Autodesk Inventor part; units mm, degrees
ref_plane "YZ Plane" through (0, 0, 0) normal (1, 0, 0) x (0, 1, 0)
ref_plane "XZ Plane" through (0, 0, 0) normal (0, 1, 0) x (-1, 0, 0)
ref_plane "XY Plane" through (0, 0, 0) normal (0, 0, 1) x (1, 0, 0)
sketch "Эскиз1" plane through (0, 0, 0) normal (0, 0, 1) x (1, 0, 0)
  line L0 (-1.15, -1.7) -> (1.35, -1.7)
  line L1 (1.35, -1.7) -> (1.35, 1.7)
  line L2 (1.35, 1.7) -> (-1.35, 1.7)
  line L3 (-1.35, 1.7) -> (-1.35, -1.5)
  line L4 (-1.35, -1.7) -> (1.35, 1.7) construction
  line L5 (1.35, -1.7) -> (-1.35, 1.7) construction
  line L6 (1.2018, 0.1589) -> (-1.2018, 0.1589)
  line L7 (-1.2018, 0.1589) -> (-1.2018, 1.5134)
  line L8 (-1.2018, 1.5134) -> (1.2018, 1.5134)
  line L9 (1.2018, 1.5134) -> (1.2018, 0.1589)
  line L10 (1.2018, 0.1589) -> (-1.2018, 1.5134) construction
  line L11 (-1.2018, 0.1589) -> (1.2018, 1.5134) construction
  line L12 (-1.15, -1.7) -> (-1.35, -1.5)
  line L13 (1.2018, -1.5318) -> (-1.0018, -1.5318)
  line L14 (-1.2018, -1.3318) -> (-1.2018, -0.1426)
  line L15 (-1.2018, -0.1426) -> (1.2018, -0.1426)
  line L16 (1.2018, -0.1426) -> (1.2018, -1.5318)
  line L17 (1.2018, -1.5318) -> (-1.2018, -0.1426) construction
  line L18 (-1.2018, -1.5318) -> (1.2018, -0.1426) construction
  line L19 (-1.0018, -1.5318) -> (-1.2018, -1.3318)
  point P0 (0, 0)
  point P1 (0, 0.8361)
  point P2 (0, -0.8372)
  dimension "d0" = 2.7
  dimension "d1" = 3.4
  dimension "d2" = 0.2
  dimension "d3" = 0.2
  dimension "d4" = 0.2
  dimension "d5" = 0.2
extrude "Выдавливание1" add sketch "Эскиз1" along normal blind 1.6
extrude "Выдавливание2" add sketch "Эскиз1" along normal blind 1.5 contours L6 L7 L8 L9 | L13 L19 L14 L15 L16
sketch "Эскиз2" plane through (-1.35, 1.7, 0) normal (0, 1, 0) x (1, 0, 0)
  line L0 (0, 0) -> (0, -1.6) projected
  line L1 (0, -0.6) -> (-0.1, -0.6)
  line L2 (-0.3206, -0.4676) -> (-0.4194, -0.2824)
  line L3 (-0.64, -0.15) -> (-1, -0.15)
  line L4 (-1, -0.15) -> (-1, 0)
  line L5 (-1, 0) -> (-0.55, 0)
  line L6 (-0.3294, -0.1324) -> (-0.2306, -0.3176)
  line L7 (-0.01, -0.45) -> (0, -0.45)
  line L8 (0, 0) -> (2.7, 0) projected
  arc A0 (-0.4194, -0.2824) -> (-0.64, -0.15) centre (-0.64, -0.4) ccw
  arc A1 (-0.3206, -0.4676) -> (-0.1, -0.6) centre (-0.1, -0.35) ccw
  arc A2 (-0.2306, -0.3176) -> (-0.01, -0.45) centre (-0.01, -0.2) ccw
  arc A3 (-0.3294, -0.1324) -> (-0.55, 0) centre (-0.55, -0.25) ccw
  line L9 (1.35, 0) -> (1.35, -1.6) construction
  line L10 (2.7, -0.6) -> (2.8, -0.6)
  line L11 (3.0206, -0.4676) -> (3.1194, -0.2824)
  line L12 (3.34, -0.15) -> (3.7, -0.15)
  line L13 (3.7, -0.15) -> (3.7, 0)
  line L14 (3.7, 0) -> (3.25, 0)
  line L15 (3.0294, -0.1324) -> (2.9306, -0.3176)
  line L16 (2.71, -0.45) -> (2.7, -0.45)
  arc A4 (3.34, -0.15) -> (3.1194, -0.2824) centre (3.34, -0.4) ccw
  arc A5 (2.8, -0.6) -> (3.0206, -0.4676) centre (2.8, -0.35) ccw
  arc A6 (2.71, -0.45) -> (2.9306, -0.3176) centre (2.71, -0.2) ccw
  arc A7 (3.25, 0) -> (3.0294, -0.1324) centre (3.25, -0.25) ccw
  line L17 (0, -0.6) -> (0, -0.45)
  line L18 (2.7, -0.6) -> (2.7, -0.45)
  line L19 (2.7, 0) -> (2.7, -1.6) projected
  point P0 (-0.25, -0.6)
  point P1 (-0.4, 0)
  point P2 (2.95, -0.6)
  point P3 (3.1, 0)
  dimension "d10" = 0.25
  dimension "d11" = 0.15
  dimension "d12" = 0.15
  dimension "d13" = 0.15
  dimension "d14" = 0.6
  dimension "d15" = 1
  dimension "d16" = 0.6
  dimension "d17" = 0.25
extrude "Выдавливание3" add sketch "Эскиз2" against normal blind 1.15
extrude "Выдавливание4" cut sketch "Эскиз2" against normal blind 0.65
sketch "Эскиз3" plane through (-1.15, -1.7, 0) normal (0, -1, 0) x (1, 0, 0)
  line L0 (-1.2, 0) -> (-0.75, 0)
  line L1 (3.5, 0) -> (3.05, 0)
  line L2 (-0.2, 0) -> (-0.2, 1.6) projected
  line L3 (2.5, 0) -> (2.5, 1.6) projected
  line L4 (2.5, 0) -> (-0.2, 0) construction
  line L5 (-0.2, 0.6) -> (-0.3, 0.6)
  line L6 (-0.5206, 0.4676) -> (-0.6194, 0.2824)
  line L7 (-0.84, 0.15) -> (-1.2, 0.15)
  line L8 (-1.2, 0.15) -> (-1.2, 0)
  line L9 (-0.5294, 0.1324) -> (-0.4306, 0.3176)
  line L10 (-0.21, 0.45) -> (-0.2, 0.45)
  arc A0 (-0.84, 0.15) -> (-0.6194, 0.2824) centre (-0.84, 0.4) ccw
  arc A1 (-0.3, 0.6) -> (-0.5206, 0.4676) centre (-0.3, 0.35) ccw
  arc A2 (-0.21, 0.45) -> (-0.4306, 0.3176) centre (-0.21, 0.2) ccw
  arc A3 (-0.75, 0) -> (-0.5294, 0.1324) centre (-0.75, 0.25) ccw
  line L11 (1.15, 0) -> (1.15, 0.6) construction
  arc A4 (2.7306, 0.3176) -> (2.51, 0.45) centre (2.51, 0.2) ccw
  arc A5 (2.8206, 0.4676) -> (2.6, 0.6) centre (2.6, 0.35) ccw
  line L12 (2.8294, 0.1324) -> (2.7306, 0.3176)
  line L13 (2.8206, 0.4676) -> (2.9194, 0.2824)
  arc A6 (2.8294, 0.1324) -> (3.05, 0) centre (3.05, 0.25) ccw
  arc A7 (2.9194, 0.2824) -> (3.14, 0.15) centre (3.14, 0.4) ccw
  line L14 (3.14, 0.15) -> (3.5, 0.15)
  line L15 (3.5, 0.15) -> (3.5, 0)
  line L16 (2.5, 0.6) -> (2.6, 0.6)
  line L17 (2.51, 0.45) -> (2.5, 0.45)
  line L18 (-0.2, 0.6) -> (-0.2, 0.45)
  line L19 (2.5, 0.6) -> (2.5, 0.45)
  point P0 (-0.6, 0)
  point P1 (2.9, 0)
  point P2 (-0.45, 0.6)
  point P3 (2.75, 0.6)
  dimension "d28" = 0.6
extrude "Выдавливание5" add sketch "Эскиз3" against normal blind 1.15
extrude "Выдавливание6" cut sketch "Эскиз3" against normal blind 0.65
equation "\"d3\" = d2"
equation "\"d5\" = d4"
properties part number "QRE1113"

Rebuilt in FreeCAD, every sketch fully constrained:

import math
import FreeCAD as App
import Part
import Sketcher
Q = App.Units.Quantity


def add_polygon(sketch, points):
    """Adds a closed chain of lines whose ends are joined by coincident constraints."""
    first, n = sketch.GeometryCount, len(points)
    for a, b in zip(points, points[1:] + points[:1]):
        sketch.addGeometry(Part.LineSegment(App.Vector(*a, 0), App.Vector(*b, 0)), False)
    for i in range(n):
        sketch.addConstraint(Sketcher.Constraint("Coincident", first + i, 2, first + (i + 1) % n, 1))

doc = App.newDocument("Part")
params = doc.addObject("Spreadsheet::Sheet", "Params")
for row, (alias, value) in enumerate([
    ("sketch1_width", "2.7 mm"),
    ("sketch1_height", "3.4 mm"),
    ("pad1_length", "1.6 mm"),
    ("pad2_length", "1.5 mm"),
    ("sketch3_radius", "0.25 mm"),
    ("sketch3_height", "0.15 mm"),
    ("sketch3_width", "0.1 mm"),
    ("sketch3_width2", "0.01 mm"),
    ("sketch3_width3", "0.45 mm"),
    ("pad3_length", "1.15 mm"),
    ("sketch4_radius", "0.25 mm"),
    ("sketch4_height", "0.15 mm"),
    ("sketch4_width", "0.1 mm"),
    ("sketch4_width2", "0.01 mm"),
    ("sketch4_width3", "0.45 mm"),
    ("pocket1_length", "0.65 mm"),
    ("sketch5_radius", "0.25 mm"),
    ("sketch5_width", "0.1 mm"),
    ("sketch5_width2", "0.45 mm"),
    ("sketch5_width3", "0.01 mm"),
    ("sketch5_height", "0.15 mm"),
    ("pad4_length", "1.15 mm"),
    ("sketch6_radius", "0.25 mm"),
    ("sketch6_width", "0.1 mm"),
    ("sketch6_width2", "0.45 mm"),
    ("sketch6_width3", "0.01 mm"),
    ("sketch6_height", "0.15 mm"),
    ("pocket2_length", "0.65 mm"),
], start=1):
    params.set(f"A{row}", alias)
    params.set(f"B{row}", "=" + value)
    params.setAlias(f"B{row}", alias)

body = doc.addObject("PartDesign::Body", "Body")

sketch1 = body.newObject("Sketcher::SketchObject", "Sketch")
sketch1.AttachmentSupport = (doc.getObject("XY_Plane"), [""])
sketch1.MapMode = "FlatFace"
add_polygon(sketch1, [(-1.35, -1.5), (-1.15, -1.7), (1.35, -1.7), (1.35, 1.7), (-1.35, 1.7)])
add_polygon(sketch1, [(1.2, -0.14), (1.2, -1.53), (-1, -1.53), (-1.2, -1.33), (-1.2, -0.14)])
add_polygon(sketch1, [(1.2, 1.51), (1.2, 0.16), (-1.2, 0.16), (-1.2, 1.51)])
sketch1.addConstraint(Sketcher.Constraint("Horizontal", 1))
sketch1.addConstraint(Sketcher.Constraint("Vertical", 2))
sketch1.addConstraint(Sketcher.Constraint("Horizontal", 3))
sketch1.addConstraint(Sketcher.Constraint("Vertical", 4))
sketch1.addConstraint(Sketcher.Constraint("Vertical", 5))
sketch1.addConstraint(Sketcher.Constraint("Horizontal", 6))
sketch1.addConstraint(Sketcher.Constraint("Vertical", 8))
sketch1.addConstraint(Sketcher.Constraint("Horizontal", 9))
sketch1.addConstraint(Sketcher.Constraint("Vertical", 10))
sketch1.addConstraint(Sketcher.Constraint("Horizontal", 11))
sketch1.addConstraint(Sketcher.Constraint("Vertical", 12))
sketch1.addConstraint(Sketcher.Constraint("Horizontal", 13))
sketch1.addConstraint(Sketcher.Constraint("Symmetric", 1, 2, 3, 2, -1, 1))
sketch1.addConstraint(Sketcher.Constraint("Parallel", 0, 7))
sketch1.addConstraint(Sketcher.Constraint("Vertical", 9, 2, 10, 2))
sketch1.addConstraint(Sketcher.Constraint("Vertical", 8, 2, 11, 2))
sketch1.addConstraint(Sketcher.Constraint("Equal", 0, 7))
sketch1.addConstraint(Sketcher.Constraint("DistanceX", 3, 2, 3, 1, Q("2.7 mm")))
sketch1.addConstraint(Sketcher.Constraint("DistanceY", 2, 1, 2, 2, Q("3.4 mm")))
sketch1.addConstraint(Sketcher.Constraint("DistanceX", 3, 2, 0, 2, Q("0.2 mm")))
sketch1.addConstraint(Sketcher.Constraint("DistanceY", 0, 2, 4, 2, Q("0.2 mm")))
sketch1.addConstraint(Sketcher.Constraint("DistanceX", 6, 2, 6, 1, Q("2.2036 mm")))
sketch1.addConstraint(Sketcher.Constraint("DistanceY", 5, 2, 5, 1, Q("1.3892 mm")))
sketch1.addConstraint(Sketcher.Constraint("DistanceY", 10, 2, 10, 1, Q("1.3545 mm")))
sketch1.addConstraint(Sketcher.Constraint("DistanceY", -1, 1, 10, 2, Q("0.159 mm")))
sketch1.addConstraint(Sketcher.Constraint("DistanceY", 8, 2, 12, 2, Q("1.656 mm")))
sketch1.addConstraint(Sketcher.Constraint("DistanceX", -1, 1, 5, 2, Q("1.2018 mm")))
sketch1.setExpression("Constraints[31]", "Params.sketch1_width")
sketch1.setExpression("Constraints[32]", "Params.sketch1_height")
pad1 = body.newObject("PartDesign::Pad", "Pad")
pad1.Profile = sketch1
pad1.setExpression("Length", "Params.pad1_length")

sketch2 = body.newObject("Sketcher::SketchObject", "Sketch001")
sketch2.AttachmentSupport = (doc.getObject("XY_Plane"), [""])
sketch2.MapMode = "FlatFace"
add_polygon(sketch2, [(-1.2, 0.16), (1.2, 0.16), (1.2, 1.51), (-1.2, 1.51)])
add_polygon(sketch2, [(-1, -1.53), (1.2, -1.53), (1.2, -0.14), (-1.2, -0.14), (-1.2, -1.33)])
sketch2.addConstraint(Sketcher.Constraint("Horizontal", 0))
sketch2.addConstraint(Sketcher.Constraint("Vertical", 1))
sketch2.addConstraint(Sketcher.Constraint("Horizontal", 2))
sketch2.addConstraint(Sketcher.Constraint("Vertical", 3))
sketch2.addConstraint(Sketcher.Constraint("Horizontal", 4))
sketch2.addConstraint(Sketcher.Constraint("Vertical", 5))
sketch2.addConstraint(Sketcher.Constraint("Horizontal", 6))
sketch2.addConstraint(Sketcher.Constraint("Vertical", 7))
sketch2.addConstraint(Sketcher.Constraint("Vertical", 1, 2, 4, 2))
sketch2.addConstraint(Sketcher.Constraint("Vertical", 3, 2, 6, 2))
sketch2.addConstraint(Sketcher.Constraint("DistanceY", 4, 2, 7, 2, Q("0.2 mm")))
sketch2.addConstraint(Sketcher.Constraint("DistanceX", 7, 2, 8, 2, Q("0.2 mm")))
sketch2.addConstraint(Sketcher.Constraint("DistanceX", 0, 1, 0, 2, Q("2.4036 mm")))
sketch2.addConstraint(Sketcher.Constraint("DistanceY", 1, 1, 1, 2, Q("1.3545 mm")))
sketch2.addConstraint(Sketcher.Constraint("DistanceY", 5, 1, 5, 2, Q("1.3892 mm")))
sketch2.addConstraint(Sketcher.Constraint("DistanceY", -1, 1, 0, 2, Q("0.159 mm")))
sketch2.addConstraint(Sketcher.Constraint("DistanceY", 5, 2, 1, 2, Q("1.656 mm")))
sketch2.addConstraint(Sketcher.Constraint("DistanceX", -1, 1, 0, 2, Q("1.2018 mm")))
pad2 = body.newObject("PartDesign::Pad", "Pad001")
pad2.Profile = sketch2
pad2.setExpression("Length", "Params.pad2_length")

sketch3 = body.newObject("Sketcher::SketchObject", "Sketch002")
sketch3.AttachmentSupport = (doc.getObject("XZ_Plane"), [""])
sketch3.MapMode = "FlatFace"
sketch3.AttachmentOffset = App.Placement(App.Vector(0, 0, -1.7), App.Rotation())
sketch3.addGeometry(Part.LineSegment(App.Vector(-1.35, 0.6, 0), App.Vector(-1.35, 0.45, 0)), False)
sketch3.addGeometry(Part.LineSegment(App.Vector(-1.35, 0.45, 0), App.Vector(-1.36, 0.45, 0)), False)
sketch3.addGeometry(Part.ArcOfCircle(Part.Circle(App.Vector(-1.36, 0.2, 0), App.Vector(0, 0, 1), 0.25), math.radians(90), math.radians(152)), False)
sketch3.addGeometry(Part.LineSegment(App.Vector(-1.581, 0.318, 0), App.Vector(-1.679, 0.132, 0)), False)
sketch3.addGeometry(Part.ArcOfCircle(Part.Circle(App.Vector(-1.9, 0.25, 0), App.Vector(0, 0, 1), 0.25), math.radians(-90), math.radians(-28)), False)
sketch3.addGeometry(Part.LineSegment(App.Vector(-1.9, 0, 0), App.Vector(-2.35, 0, 0)), False)
sketch3.addGeometry(Part.LineSegment(App.Vector(-2.35, 0, 0), App.Vector(-2.35, 0.15, 0)), False)
sketch3.addGeometry(Part.LineSegment(App.Vector(-2.35, 0.15, 0), App.Vector(-1.99, 0.15, 0)), False)
sketch3.addGeometry(Part.ArcOfCircle(Part.Circle(App.Vector(-1.99, 0.4, 0), App.Vector(0, 0, 1), 0.25), math.radians(-90), math.radians(-28)), False)
sketch3.addGeometry(Part.LineSegment(App.Vector(-1.769, 0.282, 0), App.Vector(-1.671, 0.468, 0)), False)
sketch3.addGeometry(Part.ArcOfCircle(Part.Circle(App.Vector(-1.45, 0.35, 0), App.Vector(0, 0, 1), 0.25), math.radians(90), math.radians(152)), False)
sketch3.addGeometry(Part.LineSegment(App.Vector(-1.45, 0.6, 0), App.Vector(-1.35, 0.6, 0)), False)
sketch3.addGeometry(Part.LineSegment(App.Vector(1.36, 0.45, 0), App.Vector(1.35, 0.45, 0)), False)
sketch3.addGeometry(Part.LineSegment(App.Vector(1.35, 0.45, 0), App.Vector(1.35, 0.6, 0)), False)
sketch3.addGeometry(Part.LineSegment(App.Vector(1.35, 0.6, 0), App.Vector(1.45, 0.6, 0)), False)
sketch3.addGeometry(Part.ArcOfCircle(Part.Circle(App.Vector(1.45, 0.35, 0), App.Vector(0, 0, 1), 0.25), math.radians(28), math.radians(90)), False)
sketch3.addGeometry(Part.LineSegment(App.Vector(1.671, 0.468, 0), App.Vector(1.769, 0.282, 0)), False)
sketch3.addGeometry(Part.ArcOfCircle(Part.Circle(App.Vector(1.99, 0.4, 0), App.Vector(0, 0, 1), 0.25), math.radians(-152), math.radians(-90)), False)
sketch3.addGeometry(Part.LineSegment(App.Vector(1.99, 0.15, 0), App.Vector(2.35, 0.15, 0)), False)
sketch3.addGeometry(Part.LineSegment(App.Vector(2.35, 0.15, 0), App.Vector(2.35, 0, 0)), False)
sketch3.addGeometry(Part.LineSegment(App.Vector(2.35, 0, 0), App.Vector(1.9, 0, 0)), False)
sketch3.addGeometry(Part.ArcOfCircle(Part.Circle(App.Vector(1.9, 0.25, 0), App.Vector(0, 0, 1), 0.25), math.radians(-152), math.radians(-90)), False)
sketch3.addGeometry(Part.LineSegment(App.Vector(1.679, 0.132, 0), App.Vector(1.581, 0.318, 0)), False)
sketch3.addGeometry(Part.ArcOfCircle(Part.Circle(App.Vector(1.36, 0.2, 0), App.Vector(0, 0, 1), 0.25), math.radians(28), math.radians(90)), False)
sketch3.addConstraint(Sketcher.Constraint("Coincident", 0, 2, 1, 1))
sketch3.addConstraint(Sketcher.Constraint("Tangent", 1, 2, 2, 1))
sketch3.addConstraint(Sketcher.Constraint("Tangent", 2, 2, 3, 1))
sketch3.addConstraint(Sketcher.Constraint("Tangent", 3, 2, 4, 2))
sketch3.addConstraint(Sketcher.Constraint("Tangent", 4, 1, 5, 1))
sketch3.addConstraint(Sketcher.Constraint("Coincident", 5, 2, 6, 1))
sketch3.addConstraint(Sketcher.Constraint("Coincident", 6, 2, 7, 1))
sketch3.addConstraint(Sketcher.Constraint("Tangent", 7, 2, 8, 1))
sketch3.addConstraint(Sketcher.Constraint("Tangent", 8, 2, 9, 1))
sketch3.addConstraint(Sketcher.Constraint("Tangent", 9, 2, 10, 2))
sketch3.addConstraint(Sketcher.Constraint("Tangent", 10, 1, 11, 1))
sketch3.addConstraint(Sketcher.Constraint("Coincident", 11, 2, 0, 1))
sketch3.addConstraint(Sketcher.Constraint("Coincident", 12, 2, 13, 1))
sketch3.addConstraint(Sketcher.Constraint("Coincident", 13, 2, 14, 1))
sketch3.addConstraint(Sketcher.Constraint("Tangent", 14, 2, 15, 2))
sketch3.addConstraint(Sketcher.Constraint("Tangent", 15, 1, 16, 1))
sketch3.addConstraint(Sketcher.Constraint("Tangent", 16, 2, 17, 1))
sketch3.addConstraint(Sketcher.Constraint("Tangent", 17, 2, 18, 1))
sketch3.addConstraint(Sketcher.Constraint("Coincident", 18, 2, 19, 1))
sketch3.addConstraint(Sketcher.Constraint("Coincident", 19, 2, 20, 1))
sketch3.addConstraint(Sketcher.Constraint("Tangent", 20, 2, 21, 2))
sketch3.addConstraint(Sketcher.Constraint("Tangent", 21, 1, 22, 1))
sketch3.addConstraint(Sketcher.Constraint("Tangent", 22, 2, 23, 1))
sketch3.addConstraint(Sketcher.Constraint("Tangent", 23, 2, 12, 1))
sketch3.addConstraint(Sketcher.Constraint("Vertical", 0))
sketch3.addConstraint(Sketcher.Constraint("Horizontal", 1))
sketch3.addConstraint(Sketcher.Constraint("Horizontal", 5))
sketch3.addConstraint(Sketcher.Constraint("Vertical", 6))
sketch3.addConstraint(Sketcher.Constraint("Horizontal", 7))
sketch3.addConstraint(Sketcher.Constraint("Horizontal", 11))
sketch3.addConstraint(Sketcher.Constraint("Horizontal", 12))
sketch3.addConstraint(Sketcher.Constraint("Vertical", 13))
sketch3.addConstraint(Sketcher.Constraint("Horizontal", 14))
sketch3.addConstraint(Sketcher.Constraint("Horizontal", 18))
sketch3.addConstraint(Sketcher.Constraint("Vertical", 19))
sketch3.addConstraint(Sketcher.Constraint("Horizontal", 20))
sketch3.addConstraint(Sketcher.Constraint("Equal", 2, 4))
sketch3.addConstraint(Sketcher.Constraint("Equal", 4, 8))
sketch3.addConstraint(Sketcher.Constraint("Equal", 8, 10))
sketch3.addConstraint(Sketcher.Constraint("Equal", 10, 15))
sketch3.addConstraint(Sketcher.Constraint("Equal", 15, 17))
sketch3.addConstraint(Sketcher.Constraint("Equal", 17, 21))
sketch3.addConstraint(Sketcher.Constraint("Equal", 21, 23))
sketch3.addConstraint(Sketcher.Constraint("Symmetric", 5, 2, 19, 2, -1, 1))
sketch3.addConstraint(Sketcher.Constraint("Symmetric", 10, 3, 15, 3, -2))
sketch3.addConstraint(Sketcher.Constraint("Symmetric", 8, 3, 17, 3, -2))
sketch3.addConstraint(Sketcher.Constraint("Symmetric", 4, 3, 21, 3, -2))
sketch3.addConstraint(Sketcher.Constraint("Symmetric", 2, 3, 23, 3, -2))
sketch3.addConstraint(Sketcher.Constraint("Parallel", 3, 9))
sketch3.addConstraint(Sketcher.Constraint("Equal", 1, 12))
sketch3.addConstraint(Sketcher.Constraint("Equal", 0, 6))
sketch3.addConstraint(Sketcher.Constraint("Radius", 2, Q("0.25 mm")))
sketch3.addConstraint(Sketcher.Constraint("DistanceY", 0, 2, 0, 1, Q("0.15 mm")))
sketch3.addConstraint(Sketcher.Constraint("DistanceY", -1, 1, 10, 1, Q("0.6 mm")))
sketch3.addConstraint(Sketcher.Constraint("DistanceX", 11, 1, 11, 2, Q("0.1 mm")))
sketch3.addConstraint(Sketcher.Constraint("DistanceX", 1, 2, 1, 1, Q("0.01 mm")))
sketch3.addConstraint(Sketcher.Constraint("DistanceX", 5, 2, 5, 1, Q("0.45 mm")))
sketch3.addConstraint(Sketcher.Constraint("DistanceX", 4, 3, -1, 1, Q("1.9 mm")))
sketch3.addConstraint(Sketcher.Constraint("Angle", 3, Q("-118.079 deg")))
sketch3.setExpression("Constraints[51]", "Params.sketch3_radius")
sketch3.setExpression("Constraints[52]", "Params.sketch3_height")
sketch3.setExpression("Constraints[54]", "Params.sketch3_width")
sketch3.setExpression("Constraints[55]", "Params.sketch3_width2")
sketch3.setExpression("Constraints[56]", "Params.sketch3_width3")
pad3 = body.newObject("PartDesign::Pad", "Pad002")
pad3.Profile = sketch3
pad3.setExpression("Length", "Params.pad3_length")

sketch4 = body.newObject("Sketcher::SketchObject", "Sketch003")
sketch4.AttachmentSupport = (doc.getObject("XZ_Plane"), [""])
sketch4.MapMode = "FlatFace"
sketch4.AttachmentOffset = App.Placement(App.Vector(0, 0, -1.7), App.Rotation())
sketch4.addGeometry(Part.LineSegment(App.Vector(-1.35, 0.6, 0), App.Vector(-1.35, 0.45, 0)), False)
sketch4.addGeometry(Part.LineSegment(App.Vector(-1.35, 0.45, 0), App.Vector(-1.36, 0.45, 0)), False)
sketch4.addGeometry(Part.ArcOfCircle(Part.Circle(App.Vector(-1.36, 0.2, 0), App.Vector(0, 0, 1), 0.25), math.radians(90), math.radians(152)), False)
sketch4.addGeometry(Part.LineSegment(App.Vector(-1.581, 0.318, 0), App.Vector(-1.679, 0.132, 0)), False)
sketch4.addGeometry(Part.ArcOfCircle(Part.Circle(App.Vector(-1.9, 0.25, 0), App.Vector(0, 0, 1), 0.25), math.radians(-90), math.radians(-28)), False)
sketch4.addGeometry(Part.LineSegment(App.Vector(-1.9, 0, 0), App.Vector(-2.35, 0, 0)), False)
sketch4.addGeometry(Part.LineSegment(App.Vector(-2.35, 0, 0), App.Vector(-2.35, 0.15, 0)), False)
sketch4.addGeometry(Part.LineSegment(App.Vector(-2.35, 0.15, 0), App.Vector(-1.99, 0.15, 0)), False)
sketch4.addGeometry(Part.ArcOfCircle(Part.Circle(App.Vector(-1.99, 0.4, 0), App.Vector(0, 0, 1), 0.25), math.radians(-90), math.radians(-28)), False)
sketch4.addGeometry(Part.LineSegment(App.Vector(-1.769, 0.282, 0), App.Vector(-1.671, 0.468, 0)), False)
sketch4.addGeometry(Part.ArcOfCircle(Part.Circle(App.Vector(-1.45, 0.35, 0), App.Vector(0, 0, 1), 0.25), math.radians(90), math.radians(152)), False)
sketch4.addGeometry(Part.LineSegment(App.Vector(-1.45, 0.6, 0), App.Vector(-1.35, 0.6, 0)), False)
sketch4.addGeometry(Part.LineSegment(App.Vector(1.36, 0.45, 0), App.Vector(1.35, 0.45, 0)), False)
sketch4.addGeometry(Part.LineSegment(App.Vector(1.35, 0.45, 0), App.Vector(1.35, 0.6, 0)), False)
sketch4.addGeometry(Part.LineSegment(App.Vector(1.35, 0.6, 0), App.Vector(1.45, 0.6, 0)), False)
sketch4.addGeometry(Part.ArcOfCircle(Part.Circle(App.Vector(1.45, 0.35, 0), App.Vector(0, 0, 1), 0.25), math.radians(28), math.radians(90)), False)
sketch4.addGeometry(Part.LineSegment(App.Vector(1.671, 0.468, 0), App.Vector(1.769, 0.282, 0)), False)
sketch4.addGeometry(Part.ArcOfCircle(Part.Circle(App.Vector(1.99, 0.4, 0), App.Vector(0, 0, 1), 0.25), math.radians(-152), math.radians(-90)), False)
sketch4.addGeometry(Part.LineSegment(App.Vector(1.99, 0.15, 0), App.Vector(2.35, 0.15, 0)), False)
sketch4.addGeometry(Part.LineSegment(App.Vector(2.35, 0.15, 0), App.Vector(2.35, 0, 0)), False)
sketch4.addGeometry(Part.LineSegment(App.Vector(2.35, 0, 0), App.Vector(1.9, 0, 0)), False)
sketch4.addGeometry(Part.ArcOfCircle(Part.Circle(App.Vector(1.9, 0.25, 0), App.Vector(0, 0, 1), 0.25), math.radians(-152), math.radians(-90)), False)
sketch4.addGeometry(Part.LineSegment(App.Vector(1.679, 0.132, 0), App.Vector(1.581, 0.318, 0)), False)
sketch4.addGeometry(Part.ArcOfCircle(Part.Circle(App.Vector(1.36, 0.2, 0), App.Vector(0, 0, 1), 0.25), math.radians(28), math.radians(90)), False)
sketch4.addConstraint(Sketcher.Constraint("Coincident", 0, 2, 1, 1))
sketch4.addConstraint(Sketcher.Constraint("Tangent", 1, 2, 2, 1))
sketch4.addConstraint(Sketcher.Constraint("Tangent", 2, 2, 3, 1))
sketch4.addConstraint(Sketcher.Constraint("Tangent", 3, 2, 4, 2))
sketch4.addConstraint(Sketcher.Constraint("Tangent", 4, 1, 5, 1))
sketch4.addConstraint(Sketcher.Constraint("Coincident", 5, 2, 6, 1))
sketch4.addConstraint(Sketcher.Constraint("Coincident", 6, 2, 7, 1))
sketch4.addConstraint(Sketcher.Constraint("Tangent", 7, 2, 8, 1))
sketch4.addConstraint(Sketcher.Constraint("Tangent", 8, 2, 9, 1))
sketch4.addConstraint(Sketcher.Constraint("Tangent", 9, 2, 10, 2))
sketch4.addConstraint(Sketcher.Constraint("Tangent", 10, 1, 11, 1))
sketch4.addConstraint(Sketcher.Constraint("Coincident", 11, 2, 0, 1))
sketch4.addConstraint(Sketcher.Constraint("Coincident", 12, 2, 13, 1))
sketch4.addConstraint(Sketcher.Constraint("Coincident", 13, 2, 14, 1))
sketch4.addConstraint(Sketcher.Constraint("Tangent", 14, 2, 15, 2))
sketch4.addConstraint(Sketcher.Constraint("Tangent", 15, 1, 16, 1))
sketch4.addConstraint(Sketcher.Constraint("Tangent", 16, 2, 17, 1))
sketch4.addConstraint(Sketcher.Constraint("Tangent", 17, 2, 18, 1))
sketch4.addConstraint(Sketcher.Constraint("Coincident", 18, 2, 19, 1))
sketch4.addConstraint(Sketcher.Constraint("Coincident", 19, 2, 20, 1))
sketch4.addConstraint(Sketcher.Constraint("Tangent", 20, 2, 21, 2))
sketch4.addConstraint(Sketcher.Constraint("Tangent", 21, 1, 22, 1))
sketch4.addConstraint(Sketcher.Constraint("Tangent", 22, 2, 23, 1))
sketch4.addConstraint(Sketcher.Constraint("Tangent", 23, 2, 12, 1))
sketch4.addConstraint(Sketcher.Constraint("Vertical", 0))
sketch4.addConstraint(Sketcher.Constraint("Horizontal", 1))
sketch4.addConstraint(Sketcher.Constraint("Horizontal", 5))
sketch4.addConstraint(Sketcher.Constraint("Vertical", 6))
sketch4.addConstraint(Sketcher.Constraint("Horizontal", 7))
sketch4.addConstraint(Sketcher.Constraint("Horizontal", 11))
sketch4.addConstraint(Sketcher.Constraint("Horizontal", 12))
sketch4.addConstraint(Sketcher.Constraint("Vertical", 13))
sketch4.addConstraint(Sketcher.Constraint("Horizontal", 14))
sketch4.addConstraint(Sketcher.Constraint("Horizontal", 18))
sketch4.addConstraint(Sketcher.Constraint("Vertical", 19))
sketch4.addConstraint(Sketcher.Constraint("Horizontal", 20))
sketch4.addConstraint(Sketcher.Constraint("Equal", 2, 4))
sketch4.addConstraint(Sketcher.Constraint("Equal", 4, 8))
sketch4.addConstraint(Sketcher.Constraint("Equal", 8, 10))
sketch4.addConstraint(Sketcher.Constraint("Equal", 10, 15))
sketch4.addConstraint(Sketcher.Constraint("Equal", 15, 17))
sketch4.addConstraint(Sketcher.Constraint("Equal", 17, 21))
sketch4.addConstraint(Sketcher.Constraint("Equal", 21, 23))
sketch4.addConstraint(Sketcher.Constraint("Symmetric", 5, 2, 19, 2, -1, 1))
sketch4.addConstraint(Sketcher.Constraint("Symmetric", 10, 3, 15, 3, -2))
sketch4.addConstraint(Sketcher.Constraint("Symmetric", 8, 3, 17, 3, -2))
sketch4.addConstraint(Sketcher.Constraint("Symmetric", 4, 3, 21, 3, -2))
sketch4.addConstraint(Sketcher.Constraint("Symmetric", 2, 3, 23, 3, -2))
sketch4.addConstraint(Sketcher.Constraint("Parallel", 3, 9))
sketch4.addConstraint(Sketcher.Constraint("Equal", 1, 12))
sketch4.addConstraint(Sketcher.Constraint("Equal", 0, 6))
sketch4.addConstraint(Sketcher.Constraint("Radius", 2, Q("0.25 mm")))
sketch4.addConstraint(Sketcher.Constraint("DistanceY", 0, 2, 0, 1, Q("0.15 mm")))
sketch4.addConstraint(Sketcher.Constraint("DistanceY", -1, 1, 10, 1, Q("0.6 mm")))
sketch4.addConstraint(Sketcher.Constraint("DistanceX", 11, 1, 11, 2, Q("0.1 mm")))
sketch4.addConstraint(Sketcher.Constraint("DistanceX", 1, 2, 1, 1, Q("0.01 mm")))
sketch4.addConstraint(Sketcher.Constraint("DistanceX", 5, 2, 5, 1, Q("0.45 mm")))
sketch4.addConstraint(Sketcher.Constraint("DistanceX", 4, 3, -1, 1, Q("1.9 mm")))
sketch4.addConstraint(Sketcher.Constraint("Angle", 3, Q("-118.079 deg")))
sketch4.setExpression("Constraints[51]", "Params.sketch4_radius")
sketch4.setExpression("Constraints[52]", "Params.sketch4_height")
sketch4.setExpression("Constraints[54]", "Params.sketch4_width")
sketch4.setExpression("Constraints[55]", "Params.sketch4_width2")
sketch4.setExpression("Constraints[56]", "Params.sketch4_width3")
pocket1 = body.newObject("PartDesign::Pocket", "Pocket")
pocket1.Profile = sketch4
pocket1.setExpression("Length", "Params.pocket1_length")
pocket1.Reversed = True

sketch5 = body.newObject("Sketcher::SketchObject", "Sketch004")
sketch5.AttachmentSupport = (doc.getObject("XZ_Plane"), [""])
sketch5.MapMode = "FlatFace"
sketch5.AttachmentOffset = App.Placement(App.Vector(0, 0, 1.7), App.Rotation())
sketch5.addGeometry(Part.LineSegment(App.Vector(-2.35, 0.15, 0), App.Vector(-2.35, 0, 0)), False)
sketch5.addGeometry(Part.LineSegment(App.Vector(-2.35, 0, 0), App.Vector(-1.9, 0, 0)), False)
sketch5.addGeometry(Part.ArcOfCircle(Part.Circle(App.Vector(-1.9, 0.25, 0), App.Vector(0, 0, 1), 0.25), math.radians(-90), math.radians(-28)), False)
sketch5.addGeometry(Part.LineSegment(App.Vector(-1.679, 0.132, 0), App.Vector(-1.581, 0.318, 0)), False)
sketch5.addGeometry(Part.ArcOfCircle(Part.Circle(App.Vector(-1.36, 0.2, 0), App.Vector(0, 0, 1), 0.25), math.radians(90), math.radians(152)), False)
sketch5.addGeometry(Part.LineSegment(App.Vector(-1.36, 0.45, 0), App.Vector(-1.35, 0.45, 0)), False)
sketch5.addGeometry(Part.LineSegment(App.Vector(-1.35, 0.45, 0), App.Vector(-1.35, 0.6, 0)), False)
sketch5.addGeometry(Part.LineSegment(App.Vector(-1.35, 0.6, 0), App.Vector(-1.45, 0.6, 0)), False)
sketch5.addGeometry(Part.ArcOfCircle(Part.Circle(App.Vector(-1.45, 0.35, 0), App.Vector(0, 0, 1), 0.25), math.radians(90), math.radians(152)), False)
sketch5.addGeometry(Part.LineSegment(App.Vector(-1.671, 0.468, 0), App.Vector(-1.769, 0.282, 0)), False)
sketch5.addGeometry(Part.ArcOfCircle(Part.Circle(App.Vector(-1.99, 0.4, 0), App.Vector(0, 0, 1), 0.25), math.radians(-90), math.radians(-28)), False)
sketch5.addGeometry(Part.LineSegment(App.Vector(-1.99, 0.15, 0), App.Vector(-2.35, 0.15, 0)), False)
sketch5.addGeometry(Part.LineSegment(App.Vector(1.9, 0, 0), App.Vector(2.35, 0, 0)), False)
sketch5.addGeometry(Part.LineSegment(App.Vector(2.35, 0, 0), App.Vector(2.35, 0.15, 0)), False)
sketch5.addGeometry(Part.LineSegment(App.Vector(2.35, 0.15, 0), App.Vector(1.99, 0.15, 0)), False)
sketch5.addGeometry(Part.ArcOfCircle(Part.Circle(App.Vector(1.99, 0.4, 0), App.Vector(0, 0, 1), 0.25), math.radians(-152), math.radians(-90)), False)
sketch5.addGeometry(Part.LineSegment(App.Vector(1.769, 0.282, 0), App.Vector(1.671, 0.468, 0)), False)
sketch5.addGeometry(Part.ArcOfCircle(Part.Circle(App.Vector(1.45, 0.35, 0), App.Vector(0, 0, 1), 0.25), math.radians(28), math.radians(90)), False)
sketch5.addGeometry(Part.LineSegment(App.Vector(1.45, 0.6, 0), App.Vector(1.35, 0.6, 0)), False)
sketch5.addGeometry(Part.LineSegment(App.Vector(1.35, 0.6, 0), App.Vector(1.35, 0.45, 0)), False)
sketch5.addGeometry(Part.LineSegment(App.Vector(1.35, 0.45, 0), App.Vector(1.36, 0.45, 0)), False)
sketch5.addGeometry(Part.ArcOfCircle(Part.Circle(App.Vector(1.36, 0.2, 0), App.Vector(0, 0, 1), 0.25), math.radians(28), math.radians(90)), False)
sketch5.addGeometry(Part.LineSegment(App.Vector(1.581, 0.318, 0), App.Vector(1.679, 0.132, 0)), False)
sketch5.addGeometry(Part.ArcOfCircle(Part.Circle(App.Vector(1.9, 0.25, 0), App.Vector(0, 0, 1), 0.25), math.radians(-152), math.radians(-90)), False)
sketch5.addConstraint(Sketcher.Constraint("Coincident", 0, 2, 1, 1))
sketch5.addConstraint(Sketcher.Constraint("Tangent", 1, 2, 2, 1))
sketch5.addConstraint(Sketcher.Constraint("Tangent", 2, 2, 3, 1))
sketch5.addConstraint(Sketcher.Constraint("Tangent", 3, 2, 4, 2))
sketch5.addConstraint(Sketcher.Constraint("Tangent", 4, 1, 5, 1))
sketch5.addConstraint(Sketcher.Constraint("Coincident", 5, 2, 6, 1))
sketch5.addConstraint(Sketcher.Constraint("Coincident", 6, 2, 7, 1))
sketch5.addConstraint(Sketcher.Constraint("Tangent", 7, 2, 8, 1))
sketch5.addConstraint(Sketcher.Constraint("Tangent", 8, 2, 9, 1))
sketch5.addConstraint(Sketcher.Constraint("Tangent", 9, 2, 10, 2))
sketch5.addConstraint(Sketcher.Constraint("Tangent", 10, 1, 11, 1))
sketch5.addConstraint(Sketcher.Constraint("Coincident", 11, 2, 0, 1))
sketch5.addConstraint(Sketcher.Constraint("Coincident", 12, 2, 13, 1))
sketch5.addConstraint(Sketcher.Constraint("Coincident", 13, 2, 14, 1))
sketch5.addConstraint(Sketcher.Constraint("Tangent", 14, 2, 15, 2))
sketch5.addConstraint(Sketcher.Constraint("Tangent", 15, 1, 16, 1))
sketch5.addConstraint(Sketcher.Constraint("Tangent", 16, 2, 17, 1))
sketch5.addConstraint(Sketcher.Constraint("Tangent", 17, 2, 18, 1))
sketch5.addConstraint(Sketcher.Constraint("Coincident", 18, 2, 19, 1))
sketch5.addConstraint(Sketcher.Constraint("Coincident", 19, 2, 20, 1))
sketch5.addConstraint(Sketcher.Constraint("Tangent", 20, 2, 21, 2))
sketch5.addConstraint(Sketcher.Constraint("Tangent", 21, 1, 22, 1))
sketch5.addConstraint(Sketcher.Constraint("Tangent", 22, 2, 23, 1))
sketch5.addConstraint(Sketcher.Constraint("Tangent", 23, 2, 12, 1))
sketch5.addConstraint(Sketcher.Constraint("Vertical", 0))
sketch5.addConstraint(Sketcher.Constraint("Horizontal", 1))
sketch5.addConstraint(Sketcher.Constraint("Horizontal", 5))
sketch5.addConstraint(Sketcher.Constraint("Vertical", 6))
sketch5.addConstraint(Sketcher.Constraint("Horizontal", 7))
sketch5.addConstraint(Sketcher.Constraint("Horizontal", 11))
sketch5.addConstraint(Sketcher.Constraint("Horizontal", 12))
sketch5.addConstraint(Sketcher.Constraint("Vertical", 13))
sketch5.addConstraint(Sketcher.Constraint("Horizontal", 14))
sketch5.addConstraint(Sketcher.Constraint("Horizontal", 18))
sketch5.addConstraint(Sketcher.Constraint("Vertical", 19))
sketch5.addConstraint(Sketcher.Constraint("Horizontal", 20))
sketch5.addConstraint(Sketcher.Constraint("Equal", 2, 4))
sketch5.addConstraint(Sketcher.Constraint("Equal", 4, 8))
sketch5.addConstraint(Sketcher.Constraint("Equal", 8, 10))
sketch5.addConstraint(Sketcher.Constraint("Equal", 10, 15))
sketch5.addConstraint(Sketcher.Constraint("Equal", 15, 17))
sketch5.addConstraint(Sketcher.Constraint("Equal", 17, 21))
sketch5.addConstraint(Sketcher.Constraint("Equal", 21, 23))
sketch5.addConstraint(Sketcher.Constraint("Symmetric", 0, 2, 12, 2, -1, 1))
sketch5.addConstraint(Sketcher.Constraint("Symmetric", 10, 3, 15, 3, -2))
sketch5.addConstraint(Sketcher.Constraint("Symmetric", 8, 3, 17, 3, -2))
sketch5.addConstraint(Sketcher.Constraint("Symmetric", 4, 3, 21, 3, -2))
sketch5.addConstraint(Sketcher.Constraint("Symmetric", 2, 3, 23, 3, -2))
sketch5.addConstraint(Sketcher.Constraint("Parallel", 3, 9))
sketch5.addConstraint(Sketcher.Constraint("Equal", 7, 18))
sketch5.addConstraint(Sketcher.Constraint("Equal", 0, 6))
sketch5.addConstraint(Sketcher.Constraint("DistanceY", -1, 1, 6, 2, Q("0.6 mm")))
sketch5.addConstraint(Sketcher.Constraint("Radius", 2, Q("0.25 mm")))
sketch5.addConstraint(Sketcher.Constraint("DistanceX", 7, 2, 7, 1, Q("0.1 mm")))
sketch5.addConstraint(Sketcher.Constraint("DistanceX", 1, 1, 1, 2, Q("0.45 mm")))
sketch5.addConstraint(Sketcher.Constraint("DistanceX", 5, 1, 5, 2, Q("0.01 mm")))
sketch5.addConstraint(Sketcher.Constraint("DistanceY", 0, 2, 0, 1, Q("0.15 mm")))
sketch5.addConstraint(Sketcher.Constraint("DistanceX", 2, 3, -1, 1, Q("1.9 mm")))
sketch5.addConstraint(Sketcher.Constraint("Angle", 3, Q("61.921 deg")))
sketch5.setExpression("Constraints[52]", "Params.sketch5_radius")
sketch5.setExpression("Constraints[53]", "Params.sketch5_width")
sketch5.setExpression("Constraints[54]", "Params.sketch5_width2")
sketch5.setExpression("Constraints[55]", "Params.sketch5_width3")
sketch5.setExpression("Constraints[56]", "Params.sketch5_height")
pad4 = body.newObject("PartDesign::Pad", "Pad003")
pad4.Profile = sketch5
pad4.setExpression("Length", "Params.pad4_length")
pad4.Reversed = True

sketch6 = body.newObject("Sketcher::SketchObject", "Sketch005")
sketch6.AttachmentSupport = (doc.getObject("XZ_Plane"), [""])
sketch6.MapMode = "FlatFace"
sketch6.AttachmentOffset = App.Placement(App.Vector(0, 0, 1.7), App.Rotation())
sketch6.addGeometry(Part.LineSegment(App.Vector(-2.35, 0.15, 0), App.Vector(-2.35, 0, 0)), False)
sketch6.addGeometry(Part.LineSegment(App.Vector(-2.35, 0, 0), App.Vector(-1.9, 0, 0)), False)
sketch6.addGeometry(Part.ArcOfCircle(Part.Circle(App.Vector(-1.9, 0.25, 0), App.Vector(0, 0, 1), 0.25), math.radians(-90), math.radians(-28)), False)
sketch6.addGeometry(Part.LineSegment(App.Vector(-1.679, 0.132, 0), App.Vector(-1.581, 0.318, 0)), False)
sketch6.addGeometry(Part.ArcOfCircle(Part.Circle(App.Vector(-1.36, 0.2, 0), App.Vector(0, 0, 1), 0.25), math.radians(90), math.radians(152)), False)
sketch6.addGeometry(Part.LineSegment(App.Vector(-1.36, 0.45, 0), App.Vector(-1.35, 0.45, 0)), False)
sketch6.addGeometry(Part.LineSegment(App.Vector(-1.35, 0.45, 0), App.Vector(-1.35, 0.6, 0)), False)
sketch6.addGeometry(Part.LineSegment(App.Vector(-1.35, 0.6, 0), App.Vector(-1.45, 0.6, 0)), False)
sketch6.addGeometry(Part.ArcOfCircle(Part.Circle(App.Vector(-1.45, 0.35, 0), App.Vector(0, 0, 1), 0.25), math.radians(90), math.radians(152)), False)
sketch6.addGeometry(Part.LineSegment(App.Vector(-1.671, 0.468, 0), App.Vector(-1.769, 0.282, 0)), False)
sketch6.addGeometry(Part.ArcOfCircle(Part.Circle(App.Vector(-1.99, 0.4, 0), App.Vector(0, 0, 1), 0.25), math.radians(-90), math.radians(-28)), False)
sketch6.addGeometry(Part.LineSegment(App.Vector(-1.99, 0.15, 0), App.Vector(-2.35, 0.15, 0)), False)
sketch6.addGeometry(Part.LineSegment(App.Vector(1.9, 0, 0), App.Vector(2.35, 0, 0)), False)
sketch6.addGeometry(Part.LineSegment(App.Vector(2.35, 0, 0), App.Vector(2.35, 0.15, 0)), False)
sketch6.addGeometry(Part.LineSegment(App.Vector(2.35, 0.15, 0), App.Vector(1.99, 0.15, 0)), False)
sketch6.addGeometry(Part.ArcOfCircle(Part.Circle(App.Vector(1.99, 0.4, 0), App.Vector(0, 0, 1), 0.25), math.radians(-152), math.radians(-90)), False)
sketch6.addGeometry(Part.LineSegment(App.Vector(1.769, 0.282, 0), App.Vector(1.671, 0.468, 0)), False)
sketch6.addGeometry(Part.ArcOfCircle(Part.Circle(App.Vector(1.45, 0.35, 0), App.Vector(0, 0, 1), 0.25), math.radians(28), math.radians(90)), False)
sketch6.addGeometry(Part.LineSegment(App.Vector(1.45, 0.6, 0), App.Vector(1.35, 0.6, 0)), False)
sketch6.addGeometry(Part.LineSegment(App.Vector(1.35, 0.6, 0), App.Vector(1.35, 0.45, 0)), False)
sketch6.addGeometry(Part.LineSegment(App.Vector(1.35, 0.45, 0), App.Vector(1.36, 0.45, 0)), False)
sketch6.addGeometry(Part.ArcOfCircle(Part.Circle(App.Vector(1.36, 0.2, 0), App.Vector(0, 0, 1), 0.25), math.radians(28), math.radians(90)), False)
sketch6.addGeometry(Part.LineSegment(App.Vector(1.581, 0.318, 0), App.Vector(1.679, 0.132, 0)), False)
sketch6.addGeometry(Part.ArcOfCircle(Part.Circle(App.Vector(1.9, 0.25, 0), App.Vector(0, 0, 1), 0.25), math.radians(-152), math.radians(-90)), False)
sketch6.addConstraint(Sketcher.Constraint("Coincident", 0, 2, 1, 1))
sketch6.addConstraint(Sketcher.Constraint("Tangent", 1, 2, 2, 1))
sketch6.addConstraint(Sketcher.Constraint("Tangent", 2, 2, 3, 1))
sketch6.addConstraint(Sketcher.Constraint("Tangent", 3, 2, 4, 2))
sketch6.addConstraint(Sketcher.Constraint("Tangent", 4, 1, 5, 1))
sketch6.addConstraint(Sketcher.Constraint("Coincident", 5, 2, 6, 1))
sketch6.addConstraint(Sketcher.Constraint("Coincident", 6, 2, 7, 1))
sketch6.addConstraint(Sketcher.Constraint("Tangent", 7, 2, 8, 1))
sketch6.addConstraint(Sketcher.Constraint("Tangent", 8, 2, 9, 1))
sketch6.addConstraint(Sketcher.Constraint("Tangent", 9, 2, 10, 2))
sketch6.addConstraint(Sketcher.Constraint("Tangent", 10, 1, 11, 1))
sketch6.addConstraint(Sketcher.Constraint("Coincident", 11, 2, 0, 1))
sketch6.addConstraint(Sketcher.Constraint("Coincident", 12, 2, 13, 1))
sketch6.addConstraint(Sketcher.Constraint("Coincident", 13, 2, 14, 1))
sketch6.addConstraint(Sketcher.Constraint("Tangent", 14, 2, 15, 2))
sketch6.addConstraint(Sketcher.Constraint("Tangent", 15, 1, 16, 1))
sketch6.addConstraint(Sketcher.Constraint("Tangent", 16, 2, 17, 1))
sketch6.addConstraint(Sketcher.Constraint("Tangent", 17, 2, 18, 1))
sketch6.addConstraint(Sketcher.Constraint("Coincident", 18, 2, 19, 1))
sketch6.addConstraint(Sketcher.Constraint("Coincident", 19, 2, 20, 1))
sketch6.addConstraint(Sketcher.Constraint("Tangent", 20, 2, 21, 2))
sketch6.addConstraint(Sketcher.Constraint("Tangent", 21, 1, 22, 1))
sketch6.addConstraint(Sketcher.Constraint("Tangent", 22, 2, 23, 1))
sketch6.addConstraint(Sketcher.Constraint("Tangent", 23, 2, 12, 1))
sketch6.addConstraint(Sketcher.Constraint("Vertical", 0))
sketch6.addConstraint(Sketcher.Constraint("Horizontal", 1))
sketch6.addConstraint(Sketcher.Constraint("Horizontal", 5))
sketch6.addConstraint(Sketcher.Constraint("Vertical", 6))
sketch6.addConstraint(Sketcher.Constraint("Horizontal", 7))
sketch6.addConstraint(Sketcher.Constraint("Horizontal", 11))
sketch6.addConstraint(Sketcher.Constraint("Horizontal", 12))
sketch6.addConstraint(Sketcher.Constraint("Vertical", 13))
sketch6.addConstraint(Sketcher.Constraint("Horizontal", 14))
sketch6.addConstraint(Sketcher.Constraint("Horizontal", 18))
sketch6.addConstraint(Sketcher.Constraint("Vertical", 19))
sketch6.addConstraint(Sketcher.Constraint("Horizontal", 20))
sketch6.addConstraint(Sketcher.Constraint("Equal", 2, 4))
sketch6.addConstraint(Sketcher.Constraint("Equal", 4, 8))
sketch6.addConstraint(Sketcher.Constraint("Equal", 8, 10))
sketch6.addConstraint(Sketcher.Constraint("Equal", 10, 15))
sketch6.addConstraint(Sketcher.Constraint("Equal", 15, 17))
sketch6.addConstraint(Sketcher.Constraint("Equal", 17, 21))
sketch6.addConstraint(Sketcher.Constraint("Equal", 21, 23))
sketch6.addConstraint(Sketcher.Constraint("Symmetric", 0, 2, 12, 2, -1, 1))
sketch6.addConstraint(Sketcher.Constraint("Symmetric", 10, 3, 15, 3, -2))
sketch6.addConstraint(Sketcher.Constraint("Symmetric", 8, 3, 17, 3, -2))
sketch6.addConstraint(Sketcher.Constraint("Symmetric", 4, 3, 21, 3, -2))
sketch6.addConstraint(Sketcher.Constraint("Symmetric", 2, 3, 23, 3, -2))
sketch6.addConstraint(Sketcher.Constraint("Parallel", 3, 9))
sketch6.addConstraint(Sketcher.Constraint("Equal", 7, 18))
sketch6.addConstraint(Sketcher.Constraint("Equal", 0, 6))
sketch6.addConstraint(Sketcher.Constraint("DistanceY", -1, 1, 6, 2, Q("0.6 mm")))
sketch6.addConstraint(Sketcher.Constraint("Radius", 2, Q("0.25 mm")))
sketch6.addConstraint(Sketcher.Constraint("DistanceX", 7, 2, 7, 1, Q("0.1 mm")))
sketch6.addConstraint(Sketcher.Constraint("DistanceX", 1, 1, 1, 2, Q("0.45 mm")))
sketch6.addConstraint(Sketcher.Constraint("DistanceX", 5, 1, 5, 2, Q("0.01 mm")))
sketch6.addConstraint(Sketcher.Constraint("DistanceY", 0, 2, 0, 1, Q("0.15 mm")))
sketch6.addConstraint(Sketcher.Constraint("DistanceX", 2, 3, -1, 1, Q("1.9 mm")))
sketch6.addConstraint(Sketcher.Constraint("Angle", 3, Q("61.921 deg")))
sketch6.setExpression("Constraints[52]", "Params.sketch6_radius")
sketch6.setExpression("Constraints[53]", "Params.sketch6_width")
sketch6.setExpression("Constraints[54]", "Params.sketch6_width2")
sketch6.setExpression("Constraints[55]", "Params.sketch6_width3")
sketch6.setExpression("Constraints[56]", "Params.sketch6_height")
pocket2 = body.newObject("PartDesign::Pocket", "Pocket001")
pocket2.Profile = sketch6
pocket2.setExpression("Length", "Params.pocket2_length")

doc.recompute()
